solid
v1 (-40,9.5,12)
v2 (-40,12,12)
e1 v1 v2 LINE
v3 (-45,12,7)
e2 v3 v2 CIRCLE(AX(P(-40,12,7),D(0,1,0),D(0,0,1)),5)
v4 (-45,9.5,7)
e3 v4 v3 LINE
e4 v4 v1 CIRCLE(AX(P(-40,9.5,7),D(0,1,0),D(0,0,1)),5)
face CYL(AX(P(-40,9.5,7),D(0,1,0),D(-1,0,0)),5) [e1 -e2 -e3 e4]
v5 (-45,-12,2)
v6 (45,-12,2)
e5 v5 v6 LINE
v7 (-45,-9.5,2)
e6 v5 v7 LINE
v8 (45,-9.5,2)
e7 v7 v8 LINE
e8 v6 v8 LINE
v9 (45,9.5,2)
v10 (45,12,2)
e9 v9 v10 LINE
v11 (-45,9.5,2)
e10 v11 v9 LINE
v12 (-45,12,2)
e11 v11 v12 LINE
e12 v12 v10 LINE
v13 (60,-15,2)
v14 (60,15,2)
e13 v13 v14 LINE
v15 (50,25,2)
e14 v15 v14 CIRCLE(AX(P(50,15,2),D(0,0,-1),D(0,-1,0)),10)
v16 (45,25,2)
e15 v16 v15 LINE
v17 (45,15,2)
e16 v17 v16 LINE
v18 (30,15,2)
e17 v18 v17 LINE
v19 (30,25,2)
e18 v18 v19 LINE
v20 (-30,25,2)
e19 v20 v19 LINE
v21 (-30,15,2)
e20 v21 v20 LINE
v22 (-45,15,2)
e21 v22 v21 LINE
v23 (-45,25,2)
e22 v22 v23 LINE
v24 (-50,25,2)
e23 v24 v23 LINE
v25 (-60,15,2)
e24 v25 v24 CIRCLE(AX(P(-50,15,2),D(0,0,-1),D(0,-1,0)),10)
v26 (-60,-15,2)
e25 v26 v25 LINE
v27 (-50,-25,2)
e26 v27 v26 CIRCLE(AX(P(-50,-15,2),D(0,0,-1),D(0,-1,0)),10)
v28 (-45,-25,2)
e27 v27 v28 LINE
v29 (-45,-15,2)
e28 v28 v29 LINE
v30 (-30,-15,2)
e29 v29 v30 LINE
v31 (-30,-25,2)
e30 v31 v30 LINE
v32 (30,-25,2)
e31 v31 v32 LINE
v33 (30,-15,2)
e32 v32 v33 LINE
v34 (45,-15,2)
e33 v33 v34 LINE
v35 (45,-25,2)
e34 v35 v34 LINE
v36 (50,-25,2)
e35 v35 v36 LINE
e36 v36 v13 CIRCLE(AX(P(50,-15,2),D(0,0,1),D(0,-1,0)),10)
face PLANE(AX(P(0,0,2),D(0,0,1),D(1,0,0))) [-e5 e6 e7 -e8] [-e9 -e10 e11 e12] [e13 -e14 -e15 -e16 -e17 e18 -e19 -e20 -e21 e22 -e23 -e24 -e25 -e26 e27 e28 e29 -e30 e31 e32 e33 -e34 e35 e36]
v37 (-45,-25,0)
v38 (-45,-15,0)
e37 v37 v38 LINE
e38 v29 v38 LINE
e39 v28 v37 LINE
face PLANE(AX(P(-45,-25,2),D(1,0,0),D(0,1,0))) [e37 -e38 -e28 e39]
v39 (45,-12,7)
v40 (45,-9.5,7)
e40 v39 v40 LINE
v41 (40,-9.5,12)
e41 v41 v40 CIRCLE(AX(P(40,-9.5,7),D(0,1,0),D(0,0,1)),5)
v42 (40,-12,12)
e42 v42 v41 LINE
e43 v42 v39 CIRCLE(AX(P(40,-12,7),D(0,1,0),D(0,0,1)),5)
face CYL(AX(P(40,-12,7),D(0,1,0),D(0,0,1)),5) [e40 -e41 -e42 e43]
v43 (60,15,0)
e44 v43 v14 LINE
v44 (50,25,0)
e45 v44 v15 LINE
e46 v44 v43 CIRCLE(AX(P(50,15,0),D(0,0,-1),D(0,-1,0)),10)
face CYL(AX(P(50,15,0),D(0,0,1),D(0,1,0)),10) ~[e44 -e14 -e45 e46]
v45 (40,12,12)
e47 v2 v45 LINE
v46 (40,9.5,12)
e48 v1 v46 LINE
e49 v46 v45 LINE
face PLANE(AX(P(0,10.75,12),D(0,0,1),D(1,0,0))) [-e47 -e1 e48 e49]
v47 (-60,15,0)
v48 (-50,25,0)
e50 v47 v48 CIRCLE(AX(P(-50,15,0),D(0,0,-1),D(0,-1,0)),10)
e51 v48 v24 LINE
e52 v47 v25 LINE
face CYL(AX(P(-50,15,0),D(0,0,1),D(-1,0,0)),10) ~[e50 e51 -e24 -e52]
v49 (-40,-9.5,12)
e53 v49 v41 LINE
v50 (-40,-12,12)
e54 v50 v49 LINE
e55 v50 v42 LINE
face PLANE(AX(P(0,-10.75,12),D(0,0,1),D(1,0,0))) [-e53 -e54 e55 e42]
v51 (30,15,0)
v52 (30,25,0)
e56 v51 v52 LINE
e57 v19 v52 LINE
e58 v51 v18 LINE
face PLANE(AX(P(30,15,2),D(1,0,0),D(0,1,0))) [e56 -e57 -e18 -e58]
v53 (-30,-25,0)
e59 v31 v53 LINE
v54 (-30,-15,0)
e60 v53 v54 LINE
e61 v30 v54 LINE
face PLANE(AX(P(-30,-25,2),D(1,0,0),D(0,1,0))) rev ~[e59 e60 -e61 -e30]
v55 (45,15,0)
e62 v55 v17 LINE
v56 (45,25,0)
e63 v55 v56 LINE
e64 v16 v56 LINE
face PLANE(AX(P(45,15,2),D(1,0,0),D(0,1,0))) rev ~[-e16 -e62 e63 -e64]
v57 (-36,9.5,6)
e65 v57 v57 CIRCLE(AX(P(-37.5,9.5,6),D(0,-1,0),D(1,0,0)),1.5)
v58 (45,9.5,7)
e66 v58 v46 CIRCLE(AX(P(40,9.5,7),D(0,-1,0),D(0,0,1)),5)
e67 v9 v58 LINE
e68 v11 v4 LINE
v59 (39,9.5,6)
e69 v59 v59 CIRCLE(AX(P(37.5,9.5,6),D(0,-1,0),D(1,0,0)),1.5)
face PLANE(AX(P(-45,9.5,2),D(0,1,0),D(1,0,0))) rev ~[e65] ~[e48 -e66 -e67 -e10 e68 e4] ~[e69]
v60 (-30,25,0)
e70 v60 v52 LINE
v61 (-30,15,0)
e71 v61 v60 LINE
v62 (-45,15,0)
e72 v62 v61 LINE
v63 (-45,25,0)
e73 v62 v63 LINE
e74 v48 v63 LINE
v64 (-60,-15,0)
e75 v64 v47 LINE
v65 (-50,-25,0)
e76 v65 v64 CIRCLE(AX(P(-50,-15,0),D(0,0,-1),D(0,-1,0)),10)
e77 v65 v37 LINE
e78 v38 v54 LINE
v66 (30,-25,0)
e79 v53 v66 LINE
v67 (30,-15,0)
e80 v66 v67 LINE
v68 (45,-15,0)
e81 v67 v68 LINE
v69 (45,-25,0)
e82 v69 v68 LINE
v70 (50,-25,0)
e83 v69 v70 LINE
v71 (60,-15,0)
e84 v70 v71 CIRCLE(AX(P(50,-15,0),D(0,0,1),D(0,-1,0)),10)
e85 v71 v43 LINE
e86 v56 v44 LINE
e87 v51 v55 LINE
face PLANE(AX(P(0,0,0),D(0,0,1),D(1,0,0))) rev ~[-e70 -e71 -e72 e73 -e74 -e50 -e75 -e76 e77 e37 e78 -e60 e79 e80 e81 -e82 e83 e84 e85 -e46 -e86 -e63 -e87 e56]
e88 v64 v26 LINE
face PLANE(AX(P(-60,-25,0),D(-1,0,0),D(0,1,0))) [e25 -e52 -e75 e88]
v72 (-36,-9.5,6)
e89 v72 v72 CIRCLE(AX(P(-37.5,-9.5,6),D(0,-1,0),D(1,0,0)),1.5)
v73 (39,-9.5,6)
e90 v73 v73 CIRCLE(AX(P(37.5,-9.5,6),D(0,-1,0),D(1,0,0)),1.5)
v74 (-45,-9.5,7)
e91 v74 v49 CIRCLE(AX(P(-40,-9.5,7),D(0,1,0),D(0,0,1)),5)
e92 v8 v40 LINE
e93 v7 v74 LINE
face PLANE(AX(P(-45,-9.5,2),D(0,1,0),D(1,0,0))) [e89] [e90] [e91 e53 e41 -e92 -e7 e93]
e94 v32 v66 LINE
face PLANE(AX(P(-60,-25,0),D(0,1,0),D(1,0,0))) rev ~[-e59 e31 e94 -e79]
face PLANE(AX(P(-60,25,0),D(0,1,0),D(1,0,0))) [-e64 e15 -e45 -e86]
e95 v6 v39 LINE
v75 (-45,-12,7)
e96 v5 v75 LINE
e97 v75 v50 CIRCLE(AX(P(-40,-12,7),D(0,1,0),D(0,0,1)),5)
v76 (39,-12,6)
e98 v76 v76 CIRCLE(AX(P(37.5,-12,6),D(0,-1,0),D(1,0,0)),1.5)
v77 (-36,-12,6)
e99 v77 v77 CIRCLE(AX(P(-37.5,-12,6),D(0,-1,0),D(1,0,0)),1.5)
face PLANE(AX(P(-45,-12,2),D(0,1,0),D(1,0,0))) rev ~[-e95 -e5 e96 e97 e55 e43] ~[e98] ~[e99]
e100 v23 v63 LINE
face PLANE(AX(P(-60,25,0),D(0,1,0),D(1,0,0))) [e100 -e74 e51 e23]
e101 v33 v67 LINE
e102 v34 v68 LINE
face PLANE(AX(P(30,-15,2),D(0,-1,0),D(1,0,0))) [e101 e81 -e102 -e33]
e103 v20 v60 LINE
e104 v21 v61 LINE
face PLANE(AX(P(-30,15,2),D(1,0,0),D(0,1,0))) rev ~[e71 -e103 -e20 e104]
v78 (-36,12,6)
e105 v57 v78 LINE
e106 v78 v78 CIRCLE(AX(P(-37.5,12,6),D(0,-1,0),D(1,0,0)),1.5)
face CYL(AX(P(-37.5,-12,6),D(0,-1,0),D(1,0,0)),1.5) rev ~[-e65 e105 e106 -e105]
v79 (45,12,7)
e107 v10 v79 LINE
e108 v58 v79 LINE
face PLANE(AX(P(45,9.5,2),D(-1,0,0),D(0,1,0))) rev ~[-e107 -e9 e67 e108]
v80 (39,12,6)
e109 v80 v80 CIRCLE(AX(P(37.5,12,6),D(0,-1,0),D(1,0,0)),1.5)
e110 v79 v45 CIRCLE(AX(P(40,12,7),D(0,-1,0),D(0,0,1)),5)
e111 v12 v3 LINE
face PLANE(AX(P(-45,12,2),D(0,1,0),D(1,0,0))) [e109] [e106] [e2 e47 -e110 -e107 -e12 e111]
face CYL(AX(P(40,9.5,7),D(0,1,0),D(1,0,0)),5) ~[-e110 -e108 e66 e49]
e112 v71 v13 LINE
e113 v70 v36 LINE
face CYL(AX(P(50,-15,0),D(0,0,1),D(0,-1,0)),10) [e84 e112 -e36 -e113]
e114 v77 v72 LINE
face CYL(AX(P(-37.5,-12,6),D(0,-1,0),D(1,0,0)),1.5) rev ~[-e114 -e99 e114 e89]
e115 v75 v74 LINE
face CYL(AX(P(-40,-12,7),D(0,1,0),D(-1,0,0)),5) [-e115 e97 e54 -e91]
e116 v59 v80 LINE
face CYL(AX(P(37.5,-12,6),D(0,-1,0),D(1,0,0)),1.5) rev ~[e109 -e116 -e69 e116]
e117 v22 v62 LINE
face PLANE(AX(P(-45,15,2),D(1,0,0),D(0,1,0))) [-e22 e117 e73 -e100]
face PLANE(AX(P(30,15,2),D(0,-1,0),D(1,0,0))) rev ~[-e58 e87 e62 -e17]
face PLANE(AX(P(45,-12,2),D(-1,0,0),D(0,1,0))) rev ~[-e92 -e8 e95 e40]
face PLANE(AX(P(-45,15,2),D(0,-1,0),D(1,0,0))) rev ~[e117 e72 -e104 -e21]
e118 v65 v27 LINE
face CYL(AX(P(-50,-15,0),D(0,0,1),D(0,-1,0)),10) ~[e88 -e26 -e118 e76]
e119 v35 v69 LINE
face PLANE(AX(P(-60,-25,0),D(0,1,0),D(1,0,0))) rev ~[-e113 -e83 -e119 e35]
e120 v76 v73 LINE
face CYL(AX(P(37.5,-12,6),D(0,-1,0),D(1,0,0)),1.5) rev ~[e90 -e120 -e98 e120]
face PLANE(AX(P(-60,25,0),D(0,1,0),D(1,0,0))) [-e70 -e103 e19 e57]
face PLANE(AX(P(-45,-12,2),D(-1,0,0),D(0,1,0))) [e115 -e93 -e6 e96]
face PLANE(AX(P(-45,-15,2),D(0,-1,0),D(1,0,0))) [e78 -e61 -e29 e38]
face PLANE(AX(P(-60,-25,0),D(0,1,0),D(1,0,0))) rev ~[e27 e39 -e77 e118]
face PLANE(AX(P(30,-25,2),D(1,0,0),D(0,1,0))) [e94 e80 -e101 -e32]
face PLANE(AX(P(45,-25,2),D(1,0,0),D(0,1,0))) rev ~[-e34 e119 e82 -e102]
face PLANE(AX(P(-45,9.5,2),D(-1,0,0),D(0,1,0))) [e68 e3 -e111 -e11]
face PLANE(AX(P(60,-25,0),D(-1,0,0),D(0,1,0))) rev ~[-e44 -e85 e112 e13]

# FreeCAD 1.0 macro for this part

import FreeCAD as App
import Part
import Sketcher

V = App.Vector
Q = App.Units.Quantity


def edges_at(feature, points):
    """Names of the edges that pass closest to the given points."""
    edges = feature.Shape.Edges
    near = lambda p: min(range(len(edges)), key=lambda i: edges[i].distToShape(Part.Vertex(*p))[0])
    return sorted({f"Edge{near(p) + 1}" for p in points})


def add_polygon(sketch, points):
    """Adds a closed chain of lines whose ends are joined by coincident constraints."""
    first, n = sketch.GeometryCount, len(points)
    for a, b in zip(points, points[1:] + points[:1]):
        sketch.addGeometry(Part.LineSegment(App.Vector(*a, 0), App.Vector(*b, 0)), False)
    for i in range(n):
        sketch.addConstraint(Sketcher.Constraint("Coincident", first + i, 2, first + (i + 1) % n, 1))

doc = App.newDocument("Part")
body = doc.addObject("PartDesign::Body", "Body")

sketch1 = body.newObject("Sketcher::SketchObject", "Sketch")
sketch1.AttachmentSupport = (doc.getObject("XY_Plane"), [""])
sketch1.MapMode = "FlatFace"
add_polygon(sketch1, [(-60, 25), (-60, -25), (60, -25), (60, 25)])
sketch1.addConstraint(Sketcher.Constraint("Vertical", 0))
sketch1.addConstraint(Sketcher.Constraint("Horizontal", 1))
sketch1.addConstraint(Sketcher.Constraint("Vertical", 2))
sketch1.addConstraint(Sketcher.Constraint("Horizontal", 3))
sketch1.addConstraint(Sketcher.Constraint("Symmetric", 0, 2, 2, 2, -1, 1))
sketch1.addConstraint(Sketcher.Constraint("DistanceX", 1, 1, 1, 2, Q("120 mm")))
sketch1.addConstraint(Sketcher.Constraint("DistanceY", 0, 2, 0, 1, Q("50 mm")))
pad1 = body.newObject("PartDesign::Pad", "Pad")
pad1.Profile = sketch1
pad1.Length = 2

sketch2 = body.newObject("Sketcher::SketchObject", "Sketch001")
sketch2.AttachmentSupport = (doc.getObject("XY_Plane"), [""])
sketch2.MapMode = "FlatFace"
sketch2.AttachmentOffset = App.Placement(V(0, 0, 2), App.Rotation())
add_polygon(sketch2, [(30, -15), (30, -25), (45, -25), (45, -15)])
sketch2.addConstraint(Sketcher.Constraint("Vertical", 0))
sketch2.addConstraint(Sketcher.Constraint("Horizontal", 1))
sketch2.addConstraint(Sketcher.Constraint("Vertical", 2))
sketch2.addConstraint(Sketcher.Constraint("Horizontal", 3))
sketch2.addConstraint(Sketcher.Constraint("DistanceX", 1, 1, 1, 2, Q("15 mm")))
sketch2.addConstraint(Sketcher.Constraint("DistanceY", 0, 2, 0, 1, Q("10 mm")))
sketch2.addConstraint(Sketcher.Constraint("DistanceX", -1, 1, 0, 2, Q("30 mm")))
sketch2.addConstraint(Sketcher.Constraint("DistanceY", 0, 2, -1, 1, Q("25 mm")))
pocket1 = body.newObject("PartDesign::Pocket", "Pocket")
pocket1.Profile = sketch2
pocket1.Length = 25

sketch3 = body.newObject("Sketcher::SketchObject", "Sketch002")
sketch3.AttachmentSupport = (doc.getObject("XY_Plane"), [""])
sketch3.MapMode = "FlatFace"
sketch3.AttachmentOffset = App.Placement(V(0, 0, 2), App.Rotation())
add_polygon(sketch3, [(30, 25), (30, 15), (45, 15), (45, 25)])
sketch3.addConstraint(Sketcher.Constraint("Vertical", 0))
sketch3.addConstraint(Sketcher.Constraint("Horizontal", 1))
sketch3.addConstraint(Sketcher.Constraint("Vertical", 2))
sketch3.addConstraint(Sketcher.Constraint("Horizontal", 3))
sketch3.addConstraint(Sketcher.Constraint("DistanceX", 1, 1, 1, 2, Q("15 mm")))
sketch3.addConstraint(Sketcher.Constraint("DistanceY", 0, 2, 0, 1, Q("10 mm")))
sketch3.addConstraint(Sketcher.Constraint("DistanceX", -1, 1, 0, 2, Q("30 mm")))
sketch3.addConstraint(Sketcher.Constraint("DistanceY", -1, 1, 0, 2, Q("15 mm")))
pocket2 = body.newObject("PartDesign::Pocket", "Pocket001")
pocket2.Profile = sketch3
pocket2.Length = 25
pocket2.Midplane = True

sketch4 = body.newObject("Sketcher::SketchObject", "Sketch003")
sketch4.AttachmentSupport = (doc.getObject("XY_Plane"), [""])
sketch4.MapMode = "FlatFace"
sketch4.AttachmentOffset = App.Placement(V(0, 0, 2), App.Rotation())
add_polygon(sketch4, [(-45, 25), (-45, 15), (-30, 15), (-30, 25)])
sketch4.addConstraint(Sketcher.Constraint("Vertical", 0))
sketch4.addConstraint(Sketcher.Constraint("Horizontal", 1))
sketch4.addConstraint(Sketcher.Constraint("Vertical", 2))
sketch4.addConstraint(Sketcher.Constraint("Horizontal", 3))
sketch4.addConstraint(Sketcher.Constraint("DistanceX", 1, 1, 1, 2, Q("15 mm")))
sketch4.addConstraint(Sketcher.Constraint("DistanceY", 0, 2, 0, 1, Q("10 mm")))
sketch4.addConstraint(Sketcher.Constraint("DistanceX", 0, 2, -1, 1, Q("45 mm")))
sketch4.addConstraint(Sketcher.Constraint("DistanceY", -1, 1, 0, 2, Q("15 mm")))
pocket3 = body.newObject("PartDesign::Pocket", "Pocket002")
pocket3.Profile = sketch4
pocket3.Length = 25

sketch5 = body.newObject("Sketcher::SketchObject", "Sketch004")
sketch5.AttachmentSupport = (doc.getObject("XY_Plane"), [""])
sketch5.MapMode = "FlatFace"
sketch5.AttachmentOffset = App.Placement(V(0, 0, 2), App.Rotation())
add_polygon(sketch5, [(-45, -15), (-45, -25), (-30, -25), (-30, -15)])
sketch5.addConstraint(Sketcher.Constraint("Vertical", 0))
sketch5.addConstraint(Sketcher.Constraint("Horizontal", 1))
sketch5.addConstraint(Sketcher.Constraint("Vertical", 2))
sketch5.addConstraint(Sketcher.Constraint("Horizontal", 3))
sketch5.addConstraint(Sketcher.Constraint("DistanceX", 1, 1, 1, 2, Q("15 mm")))
sketch5.addConstraint(Sketcher.Constraint("DistanceY", 0, 2, 0, 1, Q("10 mm")))
sketch5.addConstraint(Sketcher.Constraint("DistanceX", 0, 2, -1, 1, Q("45 mm")))
sketch5.addConstraint(Sketcher.Constraint("DistanceY", 0, 2, -1, 1, Q("25 mm")))
pocket4 = body.newObject("PartDesign::Pocket", "Pocket003")
pocket4.Profile = sketch5
pocket4.Length = 25

sketch6 = body.newObject("Sketcher::SketchObject", "Sketch005")
sketch6.AttachmentSupport = (doc.getObject("XY_Plane"), [""])
sketch6.MapMode = "FlatFace"
sketch6.AttachmentOffset = App.Placement(V(0, 0, 2), App.Rotation())
add_polygon(sketch6, [(-45, -9.5), (-45, -12), (45, -12), (45, -9.5)])
sketch6.addConstraint(Sketcher.Constraint("Vertical", 0))
sketch6.addConstraint(Sketcher.Constraint("Horizontal", 1))
sketch6.addConstraint(Sketcher.Constraint("Vertical", 2))
sketch6.addConstraint(Sketcher.Constraint("Horizontal", 3))
sketch6.addConstraint(Sketcher.Constraint("DistanceX", 1, 1, 1, 2, Q("90 mm")))
sketch6.addConstraint(Sketcher.Constraint("DistanceY", 0, 2, 0, 1, Q("2.5 mm")))
sketch6.addConstraint(Sketcher.Constraint("DistanceX", 0, 2, -1, 1, Q("45 mm")))
sketch6.addConstraint(Sketcher.Constraint("DistanceY", 0, 2, -1, 1, Q("12 mm")))
pad2 = body.newObject("PartDesign::Pad", "Pad001")
pad2.Profile = sketch6
pad2.Length = 10

sketch7 = body.newObject("Sketcher::SketchObject", "Sketch006")
sketch7.AttachmentSupport = (doc.getObject("XY_Plane"), [""])
sketch7.MapMode = "FlatFace"
sketch7.AttachmentOffset = App.Placement(V(0, 0, 2), App.Rotation())
add_polygon(sketch7, [(-45, 12), (-45, 9.5), (45, 9.5), (45, 12)])
sketch7.addConstraint(Sketcher.Constraint("Vertical", 0))
sketch7.addConstraint(Sketcher.Constraint("Horizontal", 1))
sketch7.addConstraint(Sketcher.Constraint("Vertical", 2))
sketch7.addConstraint(Sketcher.Constraint("Horizontal", 3))
sketch7.addConstraint(Sketcher.Constraint("DistanceX", 1, 1, 1, 2, Q("90 mm")))
sketch7.addConstraint(Sketcher.Constraint("DistanceY", 0, 2, 0, 1, Q("2.5 mm")))
sketch7.addConstraint(Sketcher.Constraint("DistanceX", 0, 2, -1, 1, Q("45 mm")))
sketch7.addConstraint(Sketcher.Constraint("DistanceY", -1, 1, 2, 2, Q("12 mm")))
pad3 = body.newObject("PartDesign::Pad", "Pad002")
pad3.Profile = sketch7
pad3.Length = 10
doc.recompute()

fillet = body.newObject("PartDesign::Fillet", "Fillet")
fillet.Base = (pad3, edges_at(pad3, [(-45, -10.75, 12)]))
fillet.Radius = 5
doc.recompute()

fillet2 = body.newObject("PartDesign::Fillet", "Fillet001")
fillet2.Base = (fillet, edges_at(fillet, [(45, 10.75, 12), (-45, 10.75, 12), (45, -10.75, 12)]))
fillet2.Radius = 5
doc.recompute()

fillet3 = body.newObject("PartDesign::Fillet", "Fillet002")
fillet3.Base = (fillet2, edges_at(fillet2, [(60, -25, 1), (60, 25, 1)]))
fillet3.Radius = 10
doc.recompute()

fillet4 = body.newObject("PartDesign::Fillet", "Fillet003")
fillet4.Base = (fillet3, edges_at(fillet3, [(-60, -25, 1), (-60, 25, 1)]))
fillet4.Radius = 10

sketch8 = body.newObject("Sketcher::SketchObject", "Sketch007")
sketch8.AttachmentSupport = (doc.getObject("XZ_Plane"), [""])
sketch8.MapMode = "FlatFace"
sketch8.AttachmentOffset = App.Placement(V(0, 0, 12), App.Rotation())
sketch8.addGeometry(Part.Circle(V(-37.5, 6, 0), V(0, 0, 1), 1.5), False)
sketch8.addConstraint(Sketcher.Constraint("Diameter", 0, Q("3 mm")))
sketch8.addConstraint(Sketcher.Constraint("DistanceY", -1, 1, 0, 3, Q("6 mm")))
sketch8.addConstraint(Sketcher.Constraint("DistanceX", 0, 3, -1, 1, Q("37.5 mm")))
pocket5 = body.newObject("PartDesign::Pocket", "Pocket004")
pocket5.Profile = sketch8
pocket5.Type = "ThroughAll"

sketch9 = body.newObject("Sketcher::SketchObject", "Sketch008")
sketch9.AttachmentSupport = (doc.getObject("XZ_Plane"), [""])
sketch9.MapMode = "FlatFace"
sketch9.AttachmentOffset = App.Placement(V(0, 0, 12), App.Rotation())
sketch9.addGeometry(Part.Circle(V(-37.5, 6, 0), V(0, 0, 1), 1.5), False)
sketch9.addGeometry(Part.Circle(V(37.5, 6, 0), V(0, 0, 1), 1.5), False)
sketch9.addConstraint(Sketcher.Constraint("Equal", 0, 1))
sketch9.addConstraint(Sketcher.Constraint("Symmetric", 0, 3, 1, 3, -2))
sketch9.addConstraint(Sketcher.Constraint("Diameter", 0, Q("3 mm")))
sketch9.addConstraint(Sketcher.Constraint("DistanceY", -1, 1, 0, 3, Q("6 mm")))
sketch9.addConstraint(Sketcher.Constraint("DistanceX", 0, 3, 1, 3, Q("75 mm")))
pocket6 = body.newObject("PartDesign::Pocket", "Pocket005")
pocket6.Profile = sketch9
pocket6.Length = 25

doc.recompute()
